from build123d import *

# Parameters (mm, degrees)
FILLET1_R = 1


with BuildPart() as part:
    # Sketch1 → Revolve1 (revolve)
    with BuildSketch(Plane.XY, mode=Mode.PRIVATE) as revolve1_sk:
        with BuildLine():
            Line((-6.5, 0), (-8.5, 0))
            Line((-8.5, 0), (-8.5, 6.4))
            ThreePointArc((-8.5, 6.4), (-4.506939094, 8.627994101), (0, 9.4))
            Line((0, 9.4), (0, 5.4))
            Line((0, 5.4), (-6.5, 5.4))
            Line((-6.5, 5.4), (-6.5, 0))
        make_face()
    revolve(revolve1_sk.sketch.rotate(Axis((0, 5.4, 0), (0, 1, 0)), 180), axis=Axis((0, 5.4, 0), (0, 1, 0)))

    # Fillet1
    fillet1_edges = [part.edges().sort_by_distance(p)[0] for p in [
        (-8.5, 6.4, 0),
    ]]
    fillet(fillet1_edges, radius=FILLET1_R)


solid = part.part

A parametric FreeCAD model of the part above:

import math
import FreeCAD as App
import Part
import Sketcher
Q = App.Units.Quantity


def edges_at(feature, points):
    """Names of the edges that pass closest to the given points."""
    edges = feature.Shape.Edges
    near = lambda p: min(range(len(edges)), key=lambda i: edges[i].distToShape(Part.Vertex(*p))[0])
    return sorted({f"Edge{near(p) + 1}" for p in points})

doc = App.newDocument("Part")
body = doc.addObject("PartDesign::Body", "Body")

# Sketch on XY plane
sketch1 = body.newObject("Sketcher::SketchObject", "Sketch")
sketch1.AttachmentSupport = (doc.getObject("XY_Plane"), [""])
sketch1.MapMode = "FlatFace"
sketch1.addGeometry(Part.LineSegment(App.Vector(-8.5, 0, 0), App.Vector(-6.5, 0, 0)), False)
sketch1.addGeometry(Part.LineSegment(App.Vector(-6.5, 0, 0), App.Vector(-6.5, 5.4, 0)), False)
sketch1.addGeometry(Part.LineSegment(App.Vector(-6.5, 5.4, 0), App.Vector(0, 5.4, 0)), False)
sketch1.addGeometry(Part.LineSegment(App.Vector(0, 5.4, 0), App.Vector(0, 9.4, 0)), False)
sketch1.addGeometry(Part.ArcOfCircle(Part.Circle(App.Vector(0, -4.1, 0), App.Vector(0, 0, 1), 13.5), math.radians(90), math.radians(129)), False)
sketch1.addGeometry(Part.LineSegment(App.Vector(-8.5, 6.4, 0), App.Vector(-8.5, 0, 0)), False)
sketch1.addConstraint(Sketcher.Constraint("Coincident", 0, 2, 1, 1))
sketch1.addConstraint(Sketcher.Constraint("Coincident", 1, 2, 2, 1))
sketch1.addConstraint(Sketcher.Constraint("Coincident", 2, 2, 3, 1))
sketch1.addConstraint(Sketcher.Constraint("Coincident", 3, 2, 4, 1))
sketch1.addConstraint(Sketcher.Constraint("Coincident", 4, 2, 5, 1))
sketch1.addConstraint(Sketcher.Constraint("Coincident", 5, 2, 0, 1))
sketch1.addConstraint(Sketcher.Constraint("Horizontal", 0))
sketch1.addConstraint(Sketcher.Constraint("Vertical", 1))
sketch1.addConstraint(Sketcher.Constraint("Horizontal", 2))
sketch1.addConstraint(Sketcher.Constraint("Vertical", 3))
sketch1.addConstraint(Sketcher.Constraint("Vertical", 5))
sketch1.addConstraint(Sketcher.Constraint("PointOnObject", 4, 3, -2))
sketch1.addConstraint(Sketcher.Constraint("PointOnObject", 0, 2, -1))
sketch1.addConstraint(Sketcher.Constraint("PointOnObject", 2, 2, -2))
sketch1.addConstraint(Sketcher.Constraint("DistanceX", 0, 1, 0, 2, Q("2 mm")))
sketch1.addConstraint(Sketcher.Constraint("DistanceY", 3, 1, 3, 2, Q("4 mm")))
sketch1.addConstraint(Sketcher.Constraint("DistanceX", 2, 1, 2, 2, Q("6.5 mm")))
sketch1.addConstraint(Sketcher.Constraint("DistanceY", 1, 1, 1, 2, Q("5.4 mm")))
sketch1.addConstraint(Sketcher.Constraint("DistanceY", 5, 2, 5, 1, Q("6.4 mm")))
revolution = body.newObject("PartDesign::Revolution", "Revolution")
revolution.Profile = sketch1
revolution.ReferenceAxis = (sketch1, ["V_Axis"])
revolution.Angle = 360
doc.recompute()

fillet = body.newObject("PartDesign::Fillet", "Fillet")
fillet.Base = (revolution, edges_at(revolution, [(-8.5, 6.4, 0)]))
fillet.Radius = 1

doc.recompute()
